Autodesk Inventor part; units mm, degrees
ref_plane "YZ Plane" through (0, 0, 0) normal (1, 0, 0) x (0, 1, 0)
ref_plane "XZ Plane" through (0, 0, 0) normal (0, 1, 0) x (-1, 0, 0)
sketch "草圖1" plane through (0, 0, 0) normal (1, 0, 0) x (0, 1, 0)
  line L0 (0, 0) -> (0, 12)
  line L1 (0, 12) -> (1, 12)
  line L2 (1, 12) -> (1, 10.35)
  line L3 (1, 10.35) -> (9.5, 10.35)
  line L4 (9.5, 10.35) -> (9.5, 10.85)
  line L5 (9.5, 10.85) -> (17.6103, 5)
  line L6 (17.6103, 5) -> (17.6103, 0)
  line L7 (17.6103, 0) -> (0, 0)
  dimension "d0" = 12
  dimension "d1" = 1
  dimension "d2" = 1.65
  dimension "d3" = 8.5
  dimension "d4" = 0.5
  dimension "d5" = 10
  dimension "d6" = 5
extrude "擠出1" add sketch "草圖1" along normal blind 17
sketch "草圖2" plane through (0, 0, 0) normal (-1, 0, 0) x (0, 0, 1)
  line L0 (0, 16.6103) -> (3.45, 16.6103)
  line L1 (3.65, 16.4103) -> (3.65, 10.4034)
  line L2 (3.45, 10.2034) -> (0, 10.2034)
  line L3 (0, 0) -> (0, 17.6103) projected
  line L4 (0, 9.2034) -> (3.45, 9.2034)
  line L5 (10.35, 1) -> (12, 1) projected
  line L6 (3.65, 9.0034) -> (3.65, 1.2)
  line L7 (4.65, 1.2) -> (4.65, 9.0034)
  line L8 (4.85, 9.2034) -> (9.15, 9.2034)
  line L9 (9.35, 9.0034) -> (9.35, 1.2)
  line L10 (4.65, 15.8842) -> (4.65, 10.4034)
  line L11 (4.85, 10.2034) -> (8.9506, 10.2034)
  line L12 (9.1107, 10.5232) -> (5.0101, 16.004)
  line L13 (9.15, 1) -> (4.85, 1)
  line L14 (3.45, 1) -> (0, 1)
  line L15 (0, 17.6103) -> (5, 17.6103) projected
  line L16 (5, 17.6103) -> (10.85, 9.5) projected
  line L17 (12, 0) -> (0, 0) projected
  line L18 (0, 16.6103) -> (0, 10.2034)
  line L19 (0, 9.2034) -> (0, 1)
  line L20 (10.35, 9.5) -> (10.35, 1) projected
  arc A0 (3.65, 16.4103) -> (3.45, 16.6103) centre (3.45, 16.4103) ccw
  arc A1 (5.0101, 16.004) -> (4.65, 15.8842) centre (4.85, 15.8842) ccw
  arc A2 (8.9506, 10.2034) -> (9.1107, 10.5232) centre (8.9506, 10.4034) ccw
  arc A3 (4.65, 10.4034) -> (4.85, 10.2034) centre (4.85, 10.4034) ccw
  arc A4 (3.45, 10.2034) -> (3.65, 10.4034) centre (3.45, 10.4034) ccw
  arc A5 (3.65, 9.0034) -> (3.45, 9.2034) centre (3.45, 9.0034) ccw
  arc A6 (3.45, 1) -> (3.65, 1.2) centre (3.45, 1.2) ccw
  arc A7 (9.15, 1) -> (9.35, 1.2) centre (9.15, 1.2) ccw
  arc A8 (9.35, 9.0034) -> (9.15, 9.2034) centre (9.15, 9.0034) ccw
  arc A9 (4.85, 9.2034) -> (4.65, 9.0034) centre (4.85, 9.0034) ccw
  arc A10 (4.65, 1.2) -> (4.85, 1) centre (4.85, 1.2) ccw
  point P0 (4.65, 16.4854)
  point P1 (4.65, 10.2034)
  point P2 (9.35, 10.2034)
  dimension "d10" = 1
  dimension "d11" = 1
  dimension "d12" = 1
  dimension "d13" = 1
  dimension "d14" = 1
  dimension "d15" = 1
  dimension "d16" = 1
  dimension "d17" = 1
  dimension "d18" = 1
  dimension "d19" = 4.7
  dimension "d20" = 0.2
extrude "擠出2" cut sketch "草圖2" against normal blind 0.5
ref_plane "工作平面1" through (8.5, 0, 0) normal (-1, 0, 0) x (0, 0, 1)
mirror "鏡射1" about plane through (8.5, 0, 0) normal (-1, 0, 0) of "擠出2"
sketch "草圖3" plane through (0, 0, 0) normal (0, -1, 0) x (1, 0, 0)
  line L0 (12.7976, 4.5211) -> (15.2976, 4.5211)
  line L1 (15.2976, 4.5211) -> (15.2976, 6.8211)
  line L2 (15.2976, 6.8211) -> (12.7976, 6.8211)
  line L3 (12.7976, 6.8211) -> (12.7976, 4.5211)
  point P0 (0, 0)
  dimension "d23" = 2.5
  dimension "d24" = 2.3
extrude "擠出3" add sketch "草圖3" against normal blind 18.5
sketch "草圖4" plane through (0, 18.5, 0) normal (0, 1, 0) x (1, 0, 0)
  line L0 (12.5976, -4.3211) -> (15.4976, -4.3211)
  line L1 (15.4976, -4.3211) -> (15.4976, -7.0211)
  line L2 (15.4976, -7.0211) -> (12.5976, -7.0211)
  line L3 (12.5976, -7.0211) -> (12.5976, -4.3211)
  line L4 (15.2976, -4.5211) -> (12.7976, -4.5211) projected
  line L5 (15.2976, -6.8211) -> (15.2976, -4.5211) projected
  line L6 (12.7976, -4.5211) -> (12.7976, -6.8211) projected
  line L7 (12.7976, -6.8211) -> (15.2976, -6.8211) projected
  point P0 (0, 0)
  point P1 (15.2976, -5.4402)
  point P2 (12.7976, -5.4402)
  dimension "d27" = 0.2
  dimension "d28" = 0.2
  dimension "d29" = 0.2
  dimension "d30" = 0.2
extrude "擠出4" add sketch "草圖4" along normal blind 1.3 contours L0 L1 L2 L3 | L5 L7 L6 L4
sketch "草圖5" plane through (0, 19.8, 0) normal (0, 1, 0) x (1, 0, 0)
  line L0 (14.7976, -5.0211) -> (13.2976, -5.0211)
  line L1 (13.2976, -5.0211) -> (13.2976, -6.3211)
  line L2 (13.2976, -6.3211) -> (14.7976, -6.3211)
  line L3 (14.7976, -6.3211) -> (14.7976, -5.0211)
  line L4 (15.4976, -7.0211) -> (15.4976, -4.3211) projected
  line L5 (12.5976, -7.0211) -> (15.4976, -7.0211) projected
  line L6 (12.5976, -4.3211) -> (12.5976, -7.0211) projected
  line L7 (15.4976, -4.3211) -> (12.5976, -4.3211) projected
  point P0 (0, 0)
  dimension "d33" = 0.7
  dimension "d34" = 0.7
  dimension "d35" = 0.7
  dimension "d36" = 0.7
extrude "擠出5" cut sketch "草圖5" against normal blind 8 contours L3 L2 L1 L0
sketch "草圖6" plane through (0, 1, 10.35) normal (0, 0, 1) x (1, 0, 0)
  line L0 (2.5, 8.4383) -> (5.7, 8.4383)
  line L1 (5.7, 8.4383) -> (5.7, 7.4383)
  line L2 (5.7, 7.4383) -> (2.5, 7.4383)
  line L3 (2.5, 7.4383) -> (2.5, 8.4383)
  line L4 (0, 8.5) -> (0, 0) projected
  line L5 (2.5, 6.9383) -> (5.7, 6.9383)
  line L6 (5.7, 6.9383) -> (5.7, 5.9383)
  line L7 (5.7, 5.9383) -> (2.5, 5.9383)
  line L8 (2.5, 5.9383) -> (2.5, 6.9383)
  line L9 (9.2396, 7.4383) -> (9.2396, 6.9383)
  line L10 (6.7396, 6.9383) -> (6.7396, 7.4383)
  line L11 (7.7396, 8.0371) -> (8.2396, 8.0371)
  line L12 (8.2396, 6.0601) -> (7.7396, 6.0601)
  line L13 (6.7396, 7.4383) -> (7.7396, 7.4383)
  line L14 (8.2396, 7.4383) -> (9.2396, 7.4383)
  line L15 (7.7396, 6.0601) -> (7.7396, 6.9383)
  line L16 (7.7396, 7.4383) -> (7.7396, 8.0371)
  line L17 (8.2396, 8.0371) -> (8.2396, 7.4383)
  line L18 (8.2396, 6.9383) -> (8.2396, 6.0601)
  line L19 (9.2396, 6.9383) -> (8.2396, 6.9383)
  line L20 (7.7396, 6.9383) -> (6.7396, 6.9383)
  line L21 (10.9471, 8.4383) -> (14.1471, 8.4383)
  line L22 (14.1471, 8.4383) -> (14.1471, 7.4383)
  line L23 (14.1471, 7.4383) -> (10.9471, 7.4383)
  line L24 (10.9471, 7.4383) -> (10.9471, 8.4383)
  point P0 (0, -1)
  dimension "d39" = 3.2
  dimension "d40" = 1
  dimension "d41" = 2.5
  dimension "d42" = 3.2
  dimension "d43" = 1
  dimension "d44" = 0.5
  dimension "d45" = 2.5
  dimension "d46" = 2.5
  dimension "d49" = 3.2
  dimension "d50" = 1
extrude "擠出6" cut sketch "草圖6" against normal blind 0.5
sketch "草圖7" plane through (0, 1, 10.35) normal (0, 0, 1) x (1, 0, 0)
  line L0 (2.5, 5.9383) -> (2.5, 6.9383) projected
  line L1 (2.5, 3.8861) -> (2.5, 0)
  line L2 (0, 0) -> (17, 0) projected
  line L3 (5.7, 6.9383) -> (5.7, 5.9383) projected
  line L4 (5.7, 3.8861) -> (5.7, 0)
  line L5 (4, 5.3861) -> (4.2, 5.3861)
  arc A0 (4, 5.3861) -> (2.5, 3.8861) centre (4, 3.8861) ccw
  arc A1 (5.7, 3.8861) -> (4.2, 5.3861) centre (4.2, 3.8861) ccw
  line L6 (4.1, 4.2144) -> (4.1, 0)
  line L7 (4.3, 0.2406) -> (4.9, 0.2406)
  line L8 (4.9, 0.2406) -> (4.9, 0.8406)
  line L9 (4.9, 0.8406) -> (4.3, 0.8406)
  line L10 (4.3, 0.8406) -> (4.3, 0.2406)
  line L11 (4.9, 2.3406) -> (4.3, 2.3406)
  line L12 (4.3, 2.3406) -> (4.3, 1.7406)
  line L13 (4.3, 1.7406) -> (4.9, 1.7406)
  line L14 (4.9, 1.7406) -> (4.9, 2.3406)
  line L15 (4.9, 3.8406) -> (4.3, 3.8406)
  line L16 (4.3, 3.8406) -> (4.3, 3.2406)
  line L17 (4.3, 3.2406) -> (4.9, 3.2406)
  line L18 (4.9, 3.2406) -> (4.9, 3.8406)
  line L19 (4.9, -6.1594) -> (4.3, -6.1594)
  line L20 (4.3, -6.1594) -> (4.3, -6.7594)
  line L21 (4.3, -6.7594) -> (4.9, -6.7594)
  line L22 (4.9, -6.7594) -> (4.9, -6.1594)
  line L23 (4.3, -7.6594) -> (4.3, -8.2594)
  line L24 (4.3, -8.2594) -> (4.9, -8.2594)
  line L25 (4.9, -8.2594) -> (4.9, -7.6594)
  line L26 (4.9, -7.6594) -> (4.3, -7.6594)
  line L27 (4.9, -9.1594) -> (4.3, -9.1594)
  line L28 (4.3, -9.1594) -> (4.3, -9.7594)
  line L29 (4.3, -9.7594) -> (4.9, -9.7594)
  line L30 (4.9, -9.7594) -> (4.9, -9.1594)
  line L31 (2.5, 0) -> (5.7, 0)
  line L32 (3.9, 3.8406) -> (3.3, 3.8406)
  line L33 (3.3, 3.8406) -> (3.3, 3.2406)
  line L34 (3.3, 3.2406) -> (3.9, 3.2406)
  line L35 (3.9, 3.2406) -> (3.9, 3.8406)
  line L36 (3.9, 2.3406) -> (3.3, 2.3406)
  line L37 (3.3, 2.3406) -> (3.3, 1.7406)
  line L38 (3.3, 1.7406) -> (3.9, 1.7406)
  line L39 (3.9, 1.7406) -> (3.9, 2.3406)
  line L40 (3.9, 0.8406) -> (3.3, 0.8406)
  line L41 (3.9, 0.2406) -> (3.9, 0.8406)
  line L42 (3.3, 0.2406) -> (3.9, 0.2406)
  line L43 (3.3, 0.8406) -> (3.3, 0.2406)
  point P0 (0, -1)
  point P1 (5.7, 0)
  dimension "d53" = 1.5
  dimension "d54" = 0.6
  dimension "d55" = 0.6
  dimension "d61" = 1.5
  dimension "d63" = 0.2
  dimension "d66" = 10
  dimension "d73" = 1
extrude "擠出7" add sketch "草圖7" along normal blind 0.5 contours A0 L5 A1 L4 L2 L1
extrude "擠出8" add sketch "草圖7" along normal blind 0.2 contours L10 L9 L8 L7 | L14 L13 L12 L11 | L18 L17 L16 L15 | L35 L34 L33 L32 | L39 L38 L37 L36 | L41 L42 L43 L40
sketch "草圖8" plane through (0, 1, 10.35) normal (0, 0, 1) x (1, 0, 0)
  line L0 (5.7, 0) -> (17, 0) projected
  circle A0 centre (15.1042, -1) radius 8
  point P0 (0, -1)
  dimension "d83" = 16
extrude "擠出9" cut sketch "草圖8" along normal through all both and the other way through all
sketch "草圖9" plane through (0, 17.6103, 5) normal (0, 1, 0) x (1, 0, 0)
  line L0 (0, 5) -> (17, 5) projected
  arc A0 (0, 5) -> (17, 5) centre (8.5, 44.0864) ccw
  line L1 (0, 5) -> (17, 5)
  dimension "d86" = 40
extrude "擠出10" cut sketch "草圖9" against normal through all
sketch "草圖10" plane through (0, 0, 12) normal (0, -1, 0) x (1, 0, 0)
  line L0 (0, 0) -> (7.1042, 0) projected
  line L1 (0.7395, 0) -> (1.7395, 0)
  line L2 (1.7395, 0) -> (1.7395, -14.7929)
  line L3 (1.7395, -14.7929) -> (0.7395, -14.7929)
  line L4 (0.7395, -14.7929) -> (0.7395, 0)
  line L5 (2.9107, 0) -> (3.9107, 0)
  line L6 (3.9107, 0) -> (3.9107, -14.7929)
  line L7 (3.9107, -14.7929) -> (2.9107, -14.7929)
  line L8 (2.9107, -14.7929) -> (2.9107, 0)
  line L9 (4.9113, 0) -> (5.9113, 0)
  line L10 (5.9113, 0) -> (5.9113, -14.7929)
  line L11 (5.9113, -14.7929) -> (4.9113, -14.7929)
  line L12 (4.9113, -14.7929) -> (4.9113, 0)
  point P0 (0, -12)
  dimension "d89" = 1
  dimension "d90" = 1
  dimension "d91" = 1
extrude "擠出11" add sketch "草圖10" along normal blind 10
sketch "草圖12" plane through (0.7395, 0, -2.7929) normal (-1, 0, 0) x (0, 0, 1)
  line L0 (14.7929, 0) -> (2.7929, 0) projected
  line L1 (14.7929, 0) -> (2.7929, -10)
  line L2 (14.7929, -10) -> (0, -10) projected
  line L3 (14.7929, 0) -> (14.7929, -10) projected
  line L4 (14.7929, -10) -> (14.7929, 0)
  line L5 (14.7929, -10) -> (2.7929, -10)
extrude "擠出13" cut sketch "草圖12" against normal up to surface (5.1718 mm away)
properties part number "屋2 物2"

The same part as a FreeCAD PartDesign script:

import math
import FreeCAD as App
import Part
import Sketcher


def add_polygon(sketch, points):
    """Adds a closed chain of lines whose ends are joined by coincident constraints."""
    first, n = sketch.GeometryCount, len(points)
    for a, b in zip(points, points[1:] + points[:1]):
        sketch.addGeometry(Part.LineSegment(App.Vector(*a, 0), App.Vector(*b, 0)), False)
    for i in range(n):
        sketch.addConstraint(Sketcher.Constraint("Coincident", first + i, 2, first + (i + 1) % n, 1))

doc = App.newDocument("Part")
body = doc.addObject("PartDesign::Body", "Body")

# Sketch on YZ plane
sketch1 = body.newObject("Sketcher::SketchObject", "Sketch")
sketch1.AttachmentSupport = (doc.getObject("YZ_Plane"), [""])
sketch1.MapMode = "FlatFace"
add_polygon(sketch1, [(0, 12), (0, 0), (17.6103, 0), (17.6103, 5), (9.5, 10.85), (9.5, 10.35), (1, 10.35), (1, 12)])  # lines 0-7
sketch1.addConstraint([
    Sketcher.Constraint("Vertical", 0),
    Sketcher.Constraint("Horizontal", 1),
    Sketcher.Constraint("Vertical", 2),
    Sketcher.Constraint("Vertical", 4),
    Sketcher.Constraint("Horizontal", 5),
    Sketcher.Constraint("Vertical", 6),
    Sketcher.Constraint("Horizontal", 7),
    Sketcher.Constraint("Coincident", 0, 2, -1, 1),
    Sketcher.Constraint("DistanceX", 7, 2, 7, 1, 1.0),
    Sketcher.Constraint("DistanceY", 0, 2, 0, 1, 12.0),
    Sketcher.Constraint("DistanceY", 2, 1, 2, 2, 5.0),
    Sketcher.Constraint("Distance", 3, 10.0),
    Sketcher.Constraint("DistanceX", 5, 2, 5, 1, 8.5),
    Sketcher.Constraint("DistanceY", 4, 2, 4, 1, 0.5),
    Sketcher.Constraint("DistanceY", 6, 1, 6, 2, 1.65),
])
pad1 = body.newObject("PartDesign::Pad", "Pad")
pad1.Profile = sketch1
pad1.Length = 17

# Sketch on YZ plane
sketch2 = body.newObject("Sketcher::SketchObject", "Sketch001")
sketch2.AttachmentSupport = (doc.getObject("YZ_Plane"), [""])
sketch2.MapMode = "FlatFace"
sketch2.addGeometry([
    Part.LineSegment(App.Vector(9.2034, 3.45, 0), App.Vector(9.2034, 0, 0)),  # 0
    Part.LineSegment(App.Vector(9.2034, 0, 0), App.Vector(1, 0, 0)),  # 1
    Part.LineSegment(App.Vector(1, 0, 0), App.Vector(1, 3.45, 0)),  # 2
    Part.ArcOfCircle(Part.Circle(App.Vector(1.2, 3.45, 0), App.Vector(0, 0, 1), 0.2), math.radians(90), math.radians(180)),  # 3
    Part.LineSegment(App.Vector(1.2, 3.65, 0), App.Vector(9.0034, 3.65, 0)),  # 4
    Part.ArcOfCircle(Part.Circle(App.Vector(9.0034, 3.45, 0), App.Vector(0, 0, 1), 0.2), math.radians(0), math.radians(90)),  # 5
    Part.LineSegment(App.Vector(16.6103, 3.45, 0), App.Vector(16.6103, 0, 0)),  # 6
    Part.LineSegment(App.Vector(16.6103, 0, 0), App.Vector(10.2034, 0, 0)),  # 7
    Part.LineSegment(App.Vector(10.2034, 0, 0), App.Vector(10.2034, 3.45, 0)),  # 8
    Part.ArcOfCircle(Part.Circle(App.Vector(10.4034, 3.45, 0), App.Vector(0, 0, 1), 0.2), math.radians(90), math.radians(180)),  # 9
    Part.LineSegment(App.Vector(10.4034, 3.65, 0), App.Vector(16.4103, 3.65, 0)),  # 10
    Part.ArcOfCircle(Part.Circle(App.Vector(16.4103, 3.45, 0), App.Vector(0, 0, 1), 0.2), math.radians(0), math.radians(90)),  # 11
    Part.LineSegment(App.Vector(9.0034, 4.65, 0), App.Vector(1.2, 4.65, 0)),  # 12
    Part.ArcOfCircle(Part.Circle(App.Vector(1.2, 4.85, 0), App.Vector(0, 0, 1), 0.2), math.radians(180), math.radians(270)),  # 13
    Part.LineSegment(App.Vector(1, 4.85, 0), App.Vector(1, 9.15, 0)),  # 14
    Part.ArcOfCircle(Part.Circle(App.Vector(1.2, 9.15, 0), App.Vector(0, 0, 1), 0.2), math.radians(90), math.radians(180)),  # 15
    Part.LineSegment(App.Vector(1.2, 9.35, 0), App.Vector(9.0034, 9.35, 0)),  # 16
    Part.ArcOfCircle(Part.Circle(App.Vector(9.0034, 9.15, 0), App.Vector(0, 0, 1), 0.2), math.radians(0), math.radians(90)),  # 17
    Part.LineSegment(App.Vector(9.2034, 9.15, 0), App.Vector(9.2034, 4.85, 0)),  # 18
    Part.ArcOfCircle(Part.Circle(App.Vector(9.0034, 4.85, 0), App.Vector(0, 0, 1), 0.2), math.radians(-90), math.radians(0)),  # 19
    Part.ArcOfCircle(Part.Circle(App.Vector(15.8842, 4.85, 0), App.Vector(0, 0, 1), 0.19996), math.radians(-90), math.radians(53.19314)),  # 20
    Part.LineSegment(App.Vector(15.8842, 4.65, 0), App.Vector(10.4034, 4.65, 0)),  # 21
    Part.ArcOfCircle(Part.Circle(App.Vector(10.4034, 4.85, 0), App.Vector(0, 0, 1), 0.2), math.radians(180), math.radians(270)),  # 22
    Part.LineSegment(App.Vector(10.2034, 4.85, 0), App.Vector(10.2034, 8.9506, 0)),  # 23
    Part.ArcOfCircle(Part.Circle(App.Vector(10.4034, 8.9506, 0), App.Vector(0, 0, 1), 0.2), math.radians(53.19314), math.radians(180)),  # 24
    Part.LineSegment(App.Vector(10.5232, 9.1107, 0), App.Vector(16.004, 5.0101, 0)),  # 25
], False)
sketch2.addConstraint([
    Sketcher.Constraint("Coincident", 0, 2, 1, 1),
    Sketcher.Constraint("Coincident", 1, 2, 2, 1),
    Sketcher.Constraint("Coincident", 2, 2, 3, 2),
    Sketcher.Constraint("Coincident", 3, 1, 4, 1),
    Sketcher.Constraint("Coincident", 4, 2, 5, 2),
    Sketcher.Constraint("Coincident", 5, 1, 0, 1),
    Sketcher.Constraint("Coincident", 6, 2, 7, 1),
    Sketcher.Constraint("Coincident", 7, 2, 8, 1),
    Sketcher.Constraint("Coincident", 8, 2, 9, 2),
    Sketcher.Constraint("Coincident", 9, 1, 10, 1),
    Sketcher.Constraint("Coincident", 10, 2, 11, 2),
    Sketcher.Constraint("Coincident", 11, 1, 6, 1),
    Sketcher.Constraint("Coincident", 12, 2, 13, 2),
    Sketcher.Constraint("Coincident", 13, 1, 14, 1),
    Sketcher.Constraint("Coincident", 14, 2, 15, 2),
    Sketcher.Constraint("Coincident", 15, 1, 16, 1),
    Sketcher.Constraint("Coincident", 16, 2, 17, 2),
    Sketcher.Constraint("Coincident", 17, 1, 18, 1),
    Sketcher.Constraint("Coincident", 18, 2, 19, 2),
    Sketcher.Constraint("Coincident", 19, 1, 12, 1),
    Sketcher.Constraint("Coincident", 20, 1, 21, 1),
    Sketcher.Constraint("Coincident", 21, 2, 22, 2),
    Sketcher.Constraint("Coincident", 22, 1, 23, 1),
    Sketcher.Constraint("Coincident", 23, 2, 24, 2),
    Sketcher.Constraint("Coincident", 24, 1, 25, 1),
    Sketcher.Constraint("Coincident", 25, 2, 20, 2),
    Sketcher.Constraint("Vertical", 0),
    Sketcher.Constraint("Horizontal", 1),
    Sketcher.Constraint("Vertical", 2),
    Sketcher.Constraint("Horizontal", 4),
    Sketcher.Constraint("Vertical", 6),
    Sketcher.Constraint("Horizontal", 7),
    Sketcher.Constraint("Vertical", 8),
    Sketcher.Constraint("Horizontal", 10),
    Sketcher.Constraint("Horizontal", 12),
    Sketcher.Constraint("Vertical", 14),
    Sketcher.Constraint("Horizontal", 16),
    Sketcher.Constraint("Vertical", 18),
    Sketcher.Constraint("Horizontal", 21),
    Sketcher.Constraint("Vertical", 23),
    Sketcher.Constraint("PointOnObject", 0, 2, -1),
    Sketcher.Constraint("PointOnObject", 6, 2, -1),
    Sketcher.Constraint("Radius", 3, 0.2),
    Sketcher.Constraint("Radius", 5, 0.2),
    Sketcher.Constraint("Radius", 9, 0.2),
    Sketcher.Constraint("Radius", 11, 0.2),
    Sketcher.Constraint("Radius", 13, 0.2),
    Sketcher.Constraint("Radius", 15, 0.2),
    Sketcher.Constraint("Radius", 17, 0.2),
    Sketcher.Constraint("Radius", 19, 0.2),
    Sketcher.Constraint("Radius", 20, 0.2),
    Sketcher.Constraint("Radius", 22, 0.2),
    Sketcher.Constraint("Radius", 24, 0.2),
    Sketcher.Constraint("DistanceX", -1, 1, 1, 2, 1.0),
    Sketcher.Constraint("DistanceX", -1, 1, 13, 1, 1.0),
    Sketcher.Constraint("DistanceX", 0, 2, 7, 2, 1.0),
    Sketcher.Constraint("DistanceY", 3, 1, 12, 2, 1.0),
    Sketcher.Constraint("DistanceY", 10, 2, 20, 1, 1.0),
    Sketcher.Constraint("DistanceX", 18, 2, 22, 1, 1.0),
    Sketcher.Constraint("DistanceX", 19, 3, 0, 2, 0.2),
    Sketcher.Constraint("DistanceX", 2, 2, 3, 1, 0.2),
    Sketcher.Constraint("DistanceY", 2, 2, 3, 1, 0.2),
    Sketcher.Constraint("DistanceY", 9, 3, 4, 2, 0.2),
    Sketcher.Constraint("DistanceX", 4, 2, 0, 2, 0.2),
    Sketcher.Constraint("DistanceY", 5, 1, 4, 2, 0.2),
    Sketcher.Constraint("DistanceY", 8, 2, 4, 2, 0.2),
    Sketcher.Constraint("DistanceX", 8, 2, 9, 1, 0.2),
    Sketcher.Constraint("DistanceX", 10, 2, 6, 2, 0.2),
    Sketcher.Constraint("DistanceY", 11, 1, 10, 2, 0.2),
    Sketcher.Constraint("DistanceX", 2, 2, 12, 2, 0.2),
    Sketcher.Constraint("DistanceY", 12, 2, 13, 1, 0.2),
    Sketcher.Constraint("DistanceX", 14, 2, 15, 1, 0.2),
    Sketcher.Constraint("DistanceY", 14, 2, 15, 1, 0.2),
    Sketcher.Constraint("DistanceY", 12, 2, 15, 1, 4.7),
    Sketcher.Constraint("DistanceX", 16, 2, 17, 1, 0.2),
    Sketcher.Constraint("DistanceY", 17, 1, 16, 2, 0.2),
    Sketcher.Constraint("DistanceX", 19, 1, 18, 2, 0.2),
    Sketcher.Constraint("DistanceY", 19, 1, 18, 2, 0.2),
    Sketcher.Constraint("DistanceX", 8, 2, 21, 2, 0.2),
    Sketcher.Constraint("DistanceY", 21, 2, 22, 1, 0.2),
    Sketcher.Constraint("DistanceY", 0, 2, 0, 1, 3.45),
    Sketcher.Constraint("DistanceY", 24, 3, 17, 3, 0.1994),
    Sketcher.Constraint("DistanceY", 23, 2, 17, 1, 0.1994),
    Sketcher.Constraint("DistanceX", 7, 2, 7, 1, 6.407),
    Sketcher.Constraint("DistanceY", -1, 1, 25, 2, 5.01),
    Sketcher.Constraint("Distance", 25, 6.845),
    Sketcher.Constraint("DistanceX", 1, 2, 1, 1, 8.2034),
    Sketcher.Constraint("DistanceX", 21, 2, 21, 1, 5.4808),
    Sketcher.Constraint("DistanceX", -1, 1, 25, 2, 16.004),
])
pocket1 = body.newObject("PartDesign::Pocket", "Pocket")
pocket1.Profile = sketch2
pocket1.Length = 0.5
pocket1.Reversed = True
doc.recompute()

datumplane = body.newObject("PartDesign::Plane", "DatumPlane")
datumplane.AttachmentSupport = (doc.getObject("YZ_Plane"), [""])
datumplane.MapMode = "FlatFace"
datumplane.AttachmentOffset = App.Placement(App.Vector(0, 0, 8.5), App.Rotation())
mirrored = body.newObject("PartDesign::Mirrored", "Mirrored")
mirrored.Originals = [pocket1]
mirrored.MirrorPlane = (datumplane, [""])
body.Tip = mirrored

# Sketch on XZ plane
sketch3 = body.newObject("Sketcher::SketchObject", "Sketch002")
sketch3.AttachmentSupport = (doc.getObject("XZ_Plane"), [""])
sketch3.MapMode = "FlatFace"
add_polygon(sketch3, [(12.7976, 6.8211), (12.7976, 4.5211), (15.2976, 4.5211), (15.2976, 6.8211)])  # lines 0-3
sketch3.addConstraint([
    Sketcher.Constraint("Vertical", 0),
    Sketcher.Constraint("Horizontal", 1),
    Sketcher.Constraint("Vertical", 2),
    Sketcher.Constraint("Horizontal", 3),
    Sketcher.Constraint("DistanceX", 1, 1, 1, 2, 2.5),
    Sketcher.Constraint("DistanceY", 0, 2, 0, 1, 2.3),
    Sketcher.Constraint("DistanceY", -1, 1, 0, 2, 4.521),
    Sketcher.Constraint("DistanceX", -1, 1, 0, 2, 12.7976),
])
pad2 = body.newObject("PartDesign::Pad", "Pad001")
pad2.Profile = sketch3
pad2.Length = 18.5
pad2.Reversed = True

# Sketch on XZ plane
sketch4 = body.newObject("Sketcher::SketchObject", "Sketch003")
sketch4.AttachmentSupport = (doc.getObject("XZ_Plane"), [""])
sketch4.MapMode = "FlatFace"
sketch4.AttachmentOffset = App.Placement(App.Vector(0, 0, -18.5), App.Rotation())
add_polygon(sketch4, [(15.4976, 4.3211), (12.5976, 4.3211), (12.5976, 7.0211), (15.4976, 7.0211)])  # lines 0-3
sketch4.addConstraint([
    Sketcher.Constraint("Horizontal", 0),
    Sketcher.Constraint("Vertical", 1),
    Sketcher.Constraint("Horizontal", 2),
    Sketcher.Constraint("Vertical", 3),
    Sketcher.Constraint("DistanceX", 0, 2, 0, 1, 2.9),
    Sketcher.Constraint("DistanceY", 1, 1, 1, 2, 2.7),
    Sketcher.Constraint("DistanceY", -1, 1, 0, 2, 4.321),
    Sketcher.Constraint("DistanceX", -1, 1, 0, 2, 12.5976),
])
pad3 = body.newObject("PartDesign::Pad", "Pad002")
pad3.Profile = sketch4
pad3.Length = 1.3
pad3.Reversed = True

# Sketch on XZ plane
sketch5 = body.newObject("Sketcher::SketchObject", "Sketch004")
sketch5.AttachmentSupport = (doc.getObject("XZ_Plane"), [""])
sketch5.MapMode = "FlatFace"
sketch5.AttachmentOffset = App.Placement(App.Vector(0, 0, -19.8), App.Rotation())
add_polygon(sketch5, [(14.7976, 6.3211), (14.7976, 5.0211), (13.2976, 5.0211), (13.2976, 6.3211)])  # lines 0-3
sketch5.addConstraint([
    Sketcher.Constraint("Vertical", 0),
    Sketcher.Constraint("Horizontal", 1),
    Sketcher.Constraint("Vertical", 2),
    Sketcher.Constraint("Horizontal", 3),
    Sketcher.Constraint("DistanceX", 1, 2, 1, 1, 1.5),
    Sketcher.Constraint("DistanceY", 0, 2, 0, 1, 1.3),
    Sketcher.Constraint("DistanceY", -1, 1, 0, 2, 5.021),
    Sketcher.Constraint("DistanceX", -1, 1, 0, 2, 14.7976),
])
pocket2 = body.newObject("PartDesign::Pocket", "Pocket001")
pocket2.Profile = sketch5
pocket2.Length = 8
pocket2.Reversed = True

# Sketch on XY plane
sketch6 = body.newObject("Sketcher::SketchObject", "Sketch005")
sketch6.AttachmentSupport = (doc.getObject("XY_Plane"), [""])
sketch6.MapMode = "FlatFace"
sketch6.AttachmentOffset = App.Placement(App.Vector(0, 0, 10.35), App.Rotation())
add_polygon(sketch6, [(5.7, 9.4383), (2.5, 9.4383), (2.5, 8.4383), (5.7, 8.4383)])  # lines 0-3
add_polygon(sketch6, [(5.7, 7.9383), (2.5, 7.9383), (2.5, 6.9383), (5.7, 6.9383)])  # lines 4-7
add_polygon(sketch6, [(9.2396, 7.9383), (9.2396, 8.4383), (8.2396, 8.4383), (8.2396, 9.0371), (7.7396, 9.0371), (7.7396, 8.4383), (6.7396, 8.4383), (6.7396, 7.9383), (7.7396, 7.9383), (7.7396, 7.0601), (8.2396, 7.0601), (8.2396, 7.9383)])  # lines 8-19
add_polygon(sketch6, [(14.1471, 9.4383), (10.9471, 9.4383), (10.9471, 8.4383), (14.1471, 8.4383)])  # lines 20-23
sketch6.addConstraint([
    Sketcher.Constraint("Horizontal", 0),
    Sketcher.Constraint("Vertical", 1),
    Sketcher.Constraint("Horizontal", 2),
    Sketcher.Constraint("Vertical", 3),
    Sketcher.Constraint("Horizontal", 4),
    Sketcher.Constraint("Vertical", 5),
    Sketcher.Constraint("Horizontal", 6),
    Sketcher.Constraint("Vertical", 7),
    Sketcher.Constraint("Vertical", 8),
    Sketcher.Constraint("Horizontal", 9),
    Sketcher.Constraint("Vertical", 10),
    Sketcher.Constraint("Horizontal", 11),
    Sketcher.Constraint("Vertical", 12),
    Sketcher.Constraint("Horizontal", 13),
    Sketcher.Constraint("Vertical", 14),
    Sketcher.Constraint("Horizontal", 15),
    Sketcher.Constraint("Vertical", 16),
    Sketcher.Constraint("Horizontal", 17),
    Sketcher.Constraint("Vertical", 18),
    Sketcher.Constraint("Horizontal", 19),
    Sketcher.Constraint("Horizontal", 20),
    Sketcher.Constraint("Vertical", 21),
    Sketcher.Constraint("Horizontal", 22),
    Sketcher.Constraint("Vertical", 23),
    Sketcher.Constraint("Horizontal", 2, 2, 8, 2),
    Sketcher.Constraint("Horizontal", 9, 2, 12, 2),
    Sketcher.Constraint("Horizontal", 7, 2, 14, 2),
    Sketcher.Constraint("Horizontal", 15, 2, 18, 2),
    Sketcher.Constraint("Horizontal", 3, 2, 20, 2),
    Sketcher.Constraint("Horizontal", 13, 2, 21, 2),
    Sketcher.Constraint("Vertical", 1, 2, 4, 2),
    Sketcher.Constraint("Vertical", 3, 2, 6, 2),
    Sketcher.Constraint("Vertical", 12, 2, 15, 2),
    Sketcher.Constraint("Vertical", 10, 2, 17, 2),
    Sketcher.Constraint("Equal", 9, 13),
    Sketcher.Constraint("Equal", 6, 20),
    Sketcher.Constraint("Equal", 19, 1),
    Sketcher.Constraint("Equal", 3, 5),
    Sketcher.Constraint("Equal", 17, 8),
    Sketcher.Constraint("DistanceX", 9, 2, 9, 1, 1.0),
    Sketcher.Constraint("DistanceX", 0, 2, 0, 1, 3.2),
    Sketcher.Constraint("DistanceX", 11, 2, 11, 1, 0.5),
    Sketcher.Constraint("DistanceX", -1, 1, 0, 2, 2.5),
    Sketcher.Constraint("DistanceY", -1, 1, 16, 2, 7.06),
    Sketcher.Constraint("DistanceY", 10, 1, 10, 2, 0.5988),
    Sketcher.Constraint("DistanceY", 16, 2, 16, 1, 0.8782),
    Sketcher.Constraint("DistanceX", -1, 1, 20, 2, 10.947),
    Sketcher.Constraint("DistanceX", -1, 1, 8, 2, 9.2396),
])
pocket3 = body.newObject("PartDesign::Pocket", "Pocket002")
pocket3.Profile = sketch6
pocket3.Length = 0.5

# Sketch on XY plane
sketch7 = body.newObject("Sketcher::SketchObject", "Sketch006")
sketch7.AttachmentSupport = (doc.getObject("XY_Plane"), [""])
sketch7.MapMode = "FlatFace"
sketch7.AttachmentOffset = App.Placement(App.Vector(0, 0, 10.35), App.Rotation())
sketch7.addGeometry(Part.ArcOfCircle(Part.Circle(App.Vector(4, 4.8861, 0), App.Vector(0, 0, 1), 1.5), math.radians(90), math.radians(180)), False)  # 0
sketch7.addGeometry(Part.LineSegment(App.Vector(2.5, 4.8861, 0), App.Vector(2.5, 1, 0)), False)  # 1
sketch7.addGeometry(Part.LineSegment(App.Vector(2.5, 1, 0), App.Vector(5.7, 1, 0)), False)  # 2
sketch7.addGeometry(Part.LineSegment(App.Vector(5.7, 1, 0), App.Vector(5.7, 4.8861, 0)), False)  # 3
sketch7.addGeometry(Part.ArcOfCircle(Part.Circle(App.Vector(4.2, 4.8861, 0), App.Vector(0, 0, 1), 1.5), math.radians(0), math.radians(90)), False)  # 4
sketch7.addGeometry(Part.LineSegment(App.Vector(4.2, 6.3861, 0), App.Vector(4, 6.3861, 0)), False)  # 5
add_polygon(sketch7, [(3.3, 1.8406), (3.9, 1.8406), (3.9, 1.2406), (3.3, 1.2406)])  # lines 6-9
add_polygon(sketch7, [(3.3, 3.3406), (3.9, 3.3406), (3.9, 2.7406), (3.3, 2.7406)])  # lines 10-13
add_polygon(sketch7, [(3.3, 4.8406), (3.9, 4.8406), (3.9, 4.2406), (3.3, 4.2406)])  # lines 14-17
add_polygon(sketch7, [(4.9, 1.2406), (4.3, 1.2406), (4.3, 1.8406), (4.9, 1.8406)])  # lines 18-21
add_polygon(sketch7, [(4.3, 3.3406), (4.9, 3.3406), (4.9, 2.7406), (4.3, 2.7406)])  # lines 22-25
add_polygon(sketch7, [(4.3, 4.8406), (4.9, 4.8406), (4.9, 4.2406), (4.3, 4.2406)])  # lines 26-29
sketch7.addConstraint([
    Sketcher.Constraint("Tangent", 0, 2, 1, 1),
    Sketcher.Constraint("Coincident", 1, 2, 2, 1),
    Sketcher.Constraint("Coincident", 2, 2, 3, 1),
    Sketcher.Constraint("Tangent", 3, 2, 4, 1),
    Sketcher.Constraint("Tangent", 4, 2, 5, 1),
    Sketcher.Constraint("Tangent", 5, 2, 0, 1),
    Sketcher.Constraint("Vertical", 1),
    Sketcher.Constraint("Horizontal", 2),
    Sketcher.Constraint("Vertical", 3),
    Sketcher.Constraint("Horizontal", 5),
    Sketcher.Constraint("Horizontal", 6),
    Sketcher.Constraint("Vertical", 7),
    Sketcher.Constraint("Horizontal", 8),
    Sketcher.Constraint("Vertical", 9),
    Sketcher.Constraint("Horizontal", 10),
    Sketcher.Constraint("Vertical", 11),
    Sketcher.Constraint("Horizontal", 12),
    Sketcher.Constraint("Vertical", 13),
    Sketcher.Constraint("Horizontal", 14),
    Sketcher.Constraint("Vertical", 15),
    Sketcher.Constraint("Horizontal", 16),
    Sketcher.Constraint("Vertical", 17),
    Sketcher.Constraint("Horizontal", 18),
    Sketcher.Constraint("Vertical", 19),
    Sketcher.Constraint("Horizontal", 20),
    Sketcher.Constraint("Vertical", 21),
    Sketcher.Constraint("Horizontal", 22),
    Sketcher.Constraint("Vertical", 23),
    Sketcher.Constraint("Horizontal", 24),
    Sketcher.Constraint("Vertical", 25),
    Sketcher.Constraint("Horizontal", 26),
    Sketcher.Constraint("Vertical", 27),
    Sketcher.Constraint("Horizontal", 28),
    Sketcher.Constraint("Vertical", 29),
    Sketcher.Constraint("Equal", 0, 4),
    Sketcher.Constraint("Horizontal", 8, 2, 18, 2),
    Sketcher.Constraint("Horizontal", 9, 2, 19, 2),
    Sketcher.Constraint("Horizontal", 13, 2, 22, 2),
    Sketcher.Constraint("Horizontal", 12, 2, 23, 2),
    Sketcher.Constraint("Horizontal", 17, 2, 26, 2),
    Sketcher.Constraint("Horizontal", 16, 2, 27, 2),
    Sketcher.Constraint("Vertical", 7, 2, 10, 2),
    Sketcher.Constraint("Vertical", 9, 2, 12, 2),
    Sketcher.Constraint("Vertical", 11, 2, 14, 2),
    Sketcher.Constraint("Vertical", 13, 2, 16, 2),
    Sketcher.Constraint("Vertical", 21, 2, 22, 2),
    Sketcher.Constraint("Vertical", 19, 2, 24, 2),
    Sketcher.Constraint("Vertical", 23, 2, 26, 2),
    Sketcher.Constraint("Vertical", 25, 2, 28, 2),
    Sketcher.Constraint("Equal", 16, 18),
    Sketcher.Constraint("Equal", 28, 7),
    Sketcher.Constraint("Equal", 9, 11),
    Sketcher.Constraint("Equal", 13, 15),
    Sketcher.Constraint("Radius", 0, 1.5),
    Sketcher.Constraint("DistanceX", 5, 2, 5, 1, 0.2),
    Sketcher.Constraint("DistanceX", 6, 1, 6, 2, 0.6),
    Sketcher.Constraint("DistanceY", -1, 1, 1, 2, 1.0),
    Sketcher.Constraint("DistanceX", 8, 2, 18, 2, 1.0),
    Sketcher.Constraint("DistanceY", 6, 2, 10, 2, 1.5),
    Sketcher.Constraint("DistanceY", 10, 2, 14, 2, 1.5),
    Sketcher.Constraint("DistanceX", -1, 1, 0, 3, 4.0),
    Sketcher.Constraint("DistanceX", -1, 1, 6, 2, 3.9),
    Sketcher.Constraint("DistanceY", 1, 2, 1, 1, 3.886),
    Sketcher.Constraint("DistanceY", -1, 1, 6, 2, 1.8406),
])
pad4 = body.newObject("PartDesign::Pad", "Pad003")
pad4.Profile = sketch7
pad4.Length = 0.5

# Sketch on XY plane
sketch8 = body.newObject("Sketcher::SketchObject", "Sketch007")
sketch8.AttachmentSupport = (doc.getObject("XY_Plane"), [""])
sketch8.MapMode = "FlatFace"
sketch8.AttachmentOffset = App.Placement(App.Vector(0, 0, 10.35), App.Rotation())
add_polygon(sketch8, [(4.3, 1.8406), (4.3, 1.2406), (4.9, 1.2406), (4.9, 1.8406)])  # lines 0-3
add_polygon(sketch8, [(4.9, 2.7406), (4.9, 3.3406), (4.3, 3.3406), (4.3, 2.7406)])  # lines 4-7
add_polygon(sketch8, [(4.9, 4.2406), (4.9, 4.8406), (4.3, 4.8406), (4.3, 4.2406)])  # lines 8-11
add_polygon(sketch8, [(3.9, 4.2406), (3.9, 4.8406), (3.3, 4.8406), (3.3, 4.2406)])  # lines 12-15
add_polygon(sketch8, [(3.9, 2.7406), (3.9, 3.3406), (3.3, 3.3406), (3.3, 2.7406)])  # lines 16-19
add_polygon(sketch8, [(3.9, 1.2406), (3.9, 1.8406), (3.3, 1.8406), (3.3, 1.2406)])  # lines 20-23
sketch8.addConstraint([
    Sketcher.Constraint("Vertical", 0),
    Sketcher.Constraint("Horizontal", 1),
    Sketcher.Constraint("Vertical", 2),
    Sketcher.Constraint("Horizontal", 3),
    Sketcher.Constraint("Vertical", 4),
    Sketcher.Constraint("Horizontal", 5),
    Sketcher.Constraint("Vertical", 6),
    Sketcher.Constraint("Horizontal", 7),
    Sketcher.Constraint("Vertical", 8),
    Sketcher.Constraint("Horizontal", 9),
    Sketcher.Constraint("Vertical", 10),
    Sketcher.Constraint("Horizontal", 11),
    Sketcher.Constraint("Vertical", 12),
    Sketcher.Constraint("Horizontal", 13),
    Sketcher.Constraint("Vertical", 14),
    Sketcher.Constraint("Horizontal", 15),
    Sketcher.Constraint("Vertical", 16),
    Sketcher.Constraint("Horizontal", 17),
    Sketcher.Constraint("Vertical", 18),
    Sketcher.Constraint("Horizontal", 19),
    Sketcher.Constraint("Vertical", 20),
    Sketcher.Constraint("Horizontal", 21),
    Sketcher.Constraint("Vertical", 22),
    Sketcher.Constraint("Horizontal", 23),
    Sketcher.Constraint("Horizontal", 9, 2, 12, 2),
    Sketcher.Constraint("Horizontal", 11, 2, 14, 2),
    Sketcher.Constraint("Horizontal", 5, 2, 16, 2),
    Sketcher.Constraint("Horizontal", 7, 2, 18, 2),
    Sketcher.Constraint("Horizontal", 3, 2, 20, 2),
    Sketcher.Constraint("Horizontal", 1, 2, 22, 2),
    Sketcher.Constraint("Vertical", 2, 2, 4, 2),
    Sketcher.Constraint("Vertical", 3, 2, 5, 2),
    Sketcher.Constraint("Vertical", 7, 2, 8, 2),
    Sketcher.Constraint("Vertical", 6, 2, 9, 2),
    Sketcher.Constraint("Vertical", 15, 2, 16, 2),
    Sketcher.Constraint("Vertical", 14, 2, 17, 2),
    Sketcher.Constraint("Vertical", 19, 2, 20, 2),
    Sketcher.Constraint("Vertical", 18, 2, 21, 2),
    Sketcher.Constraint("Equal", 11, 13),
    Sketcher.Constraint("Equal", 23, 0),
    Sketcher.Constraint("Equal", 2, 4),
    Sketcher.Constraint("Equal", 6, 8),
    Sketcher.Constraint("DistanceX", 1, 1, 1, 2, 0.6),
    Sketcher.Constraint("DistanceX", 12, 2, 8, 2, 1.0),
    Sketcher.Constraint("DistanceY", 2, 2, 4, 2, 1.5),
    Sketcher.Constraint("DistanceY", 4, 2, 8, 2, 1.5),
    Sketcher.Constraint("DistanceX", -1, 1, 0, 2, 4.3),
    Sketcher.Constraint("DistanceY", -1, 1, 0, 2, 1.2406),
])
pad5 = body.newObject("PartDesign::Pad", "Pad004")
pad5.Profile = sketch8
pad5.Length = 0.2

# Sketch on XY plane
sketch9 = body.newObject("Sketcher::SketchObject", "Sketch008")
sketch9.AttachmentSupport = (doc.getObject("XY_Plane"), [""])
sketch9.MapMode = "FlatFace"
sketch9.AttachmentOffset = App.Placement(App.Vector(0, 0, 10.35), App.Rotation())
sketch9.addGeometry(Part.Circle(App.Vector(15.1042, 0, 0), App.Vector(0, 0, 1), 8), False)
sketch9.addConstraint([
    Sketcher.Constraint("PointOnObject", 0, 3, -1),
    Sketcher.Constraint("Diameter", 0, 16.0),
    Sketcher.Constraint("DistanceX", -1, 1, 0, 3, 15.1042),
])
pocket4 = body.newObject("PartDesign::Pocket", "Pocket003")
pocket4.Profile = sketch9
pocket4.Type = "ThroughAll"
pocket4.Midplane = True

# Sketch on XZ plane
sketch10 = body.newObject("Sketcher::SketchObject", "Sketch009")
sketch10.AttachmentSupport = (doc.getObject("XZ_Plane"), [""])
sketch10.MapMode = "FlatFace"
sketch10.AttachmentOffset = App.Placement(App.Vector(0, 0, -17.6103), App.Rotation())
sketch10.addGeometry([
    Part.LineSegment(App.Vector(17, 0, 0), App.Vector(0, 0, 0)),
    Part.ArcOfCircle(Part.Circle(App.Vector(8.5, -39.0864, 0), App.Vector(0, 0, 1), 39.999958), math.radians(77.731088), math.radians(102.268912)),
], False)
sketch10.addConstraint([
    Sketcher.Constraint("Coincident", 0, 1, 1, 1),
    Sketcher.Constraint("Coincident", 1, 2, 0, 2),
    Sketcher.Constraint("Horizontal", 0),
    Sketcher.Constraint("Coincident", 1, 2, -1, 1),
    Sketcher.Constraint("Radius", 1, 40.0),
    Sketcher.Constraint("DistanceX", 0, 2, 0, 1, 17.0),
])
pocket5 = body.newObject("PartDesign::Pocket", "Pocket004")
pocket5.Profile = sketch10
pocket5.Type = "ThroughAll"
pocket5.Reversed = True

# Sketch on XZ plane
sketch11 = body.newObject("Sketcher::SketchObject", "Sketch010")
sketch11.AttachmentSupport = (doc.getObject("XZ_Plane"), [""])
sketch11.MapMode = "FlatFace"
add_polygon(sketch11, [(5.9113, 12), (4.9113, 12), (4.9113, -2.7929), (5.9113, -2.7929)])  # lines 0-3
add_polygon(sketch11, [(3.9107, 12), (2.9107, 12), (2.9107, -2.7929), (3.9107, -2.7929)])  # lines 4-7
add_polygon(sketch11, [(1.7395, 12), (0.7395, 12), (0.7395, -2.7929), (1.7395, -2.7929)])  # lines 8-11
sketch11.addConstraint([
    Sketcher.Constraint("Horizontal", 0),
    Sketcher.Constraint("Vertical", 1),
    Sketcher.Constraint("Horizontal", 2),
    Sketcher.Constraint("Vertical", 3),
    Sketcher.Constraint("Horizontal", 4),
    Sketcher.Constraint("Vertical", 5),
    Sketcher.Constraint("Horizontal", 6),
    Sketcher.Constraint("Vertical", 7),
    Sketcher.Constraint("Horizontal", 8),
    Sketcher.Constraint("Vertical", 9),
    Sketcher.Constraint("Horizontal", 10),
    Sketcher.Constraint("Vertical", 11),
    Sketcher.Constraint("Horizontal", 3, 2, 4, 2),
    Sketcher.Constraint("Horizontal", 2, 2, 5, 2),
    Sketcher.Constraint("Horizontal", 7, 2, 8, 2),
    Sketcher.Constraint("Horizontal", 6, 2, 9, 2),
    Sketcher.Constraint("Equal", 2, 4),
    Sketcher.Constraint("Equal", 6, 8),
    Sketcher.Constraint("DistanceX", 0, 2, 0, 1, 1.0),
    Sketcher.Constraint("DistanceY", -1, 1, 0, 2, 12.0),
    Sketcher.Constraint("DistanceX", 6, 2, 1, 2, 1.0006),
    Sketcher.Constraint("DistanceY", 1, 2, 1, 1, 14.793),
    Sketcher.Constraint("DistanceX", -1, 1, 0, 2, 4.9113),
    Sketcher.Constraint("DistanceX", -1, 1, 8, 2, 0.7395),
])
pad6 = body.newObject("PartDesign::Pad", "Pad005")
pad6.Profile = sketch11
pad6.Length = 10

# Sketch on YZ plane
sketch12 = body.newObject("Sketcher::SketchObject", "Sketch011")
sketch12.AttachmentSupport = (doc.getObject("YZ_Plane"), [""])
sketch12.MapMode = "FlatFace"
sketch12.AttachmentOffset = App.Placement(App.Vector(0, 0, 0.7395), App.Rotation())
add_polygon(sketch12, [(-10, 12), (0, 12), (-10, 0)])  # lines 0-2
sketch12.addConstraint([
    Sketcher.Constraint("Horizontal", 0),
    Sketcher.Constraint("Vertical", 2),
    Sketcher.Constraint("PointOnObject", 0, 2, -2),
    Sketcher.Constraint("PointOnObject", 1, 2, -1),
    Sketcher.Constraint("DistanceX", 0, 1, 0, 2, 10.0),
    Sketcher.Constraint("DistanceY", 2, 1, 2, 2, 12.0),
])
pocket6 = body.newObject("PartDesign::Pocket", "Pocket005")
pocket6.Profile = sketch12
pocket6.Length = 5.1718
pocket6.Reversed = True

doc.recompute()
